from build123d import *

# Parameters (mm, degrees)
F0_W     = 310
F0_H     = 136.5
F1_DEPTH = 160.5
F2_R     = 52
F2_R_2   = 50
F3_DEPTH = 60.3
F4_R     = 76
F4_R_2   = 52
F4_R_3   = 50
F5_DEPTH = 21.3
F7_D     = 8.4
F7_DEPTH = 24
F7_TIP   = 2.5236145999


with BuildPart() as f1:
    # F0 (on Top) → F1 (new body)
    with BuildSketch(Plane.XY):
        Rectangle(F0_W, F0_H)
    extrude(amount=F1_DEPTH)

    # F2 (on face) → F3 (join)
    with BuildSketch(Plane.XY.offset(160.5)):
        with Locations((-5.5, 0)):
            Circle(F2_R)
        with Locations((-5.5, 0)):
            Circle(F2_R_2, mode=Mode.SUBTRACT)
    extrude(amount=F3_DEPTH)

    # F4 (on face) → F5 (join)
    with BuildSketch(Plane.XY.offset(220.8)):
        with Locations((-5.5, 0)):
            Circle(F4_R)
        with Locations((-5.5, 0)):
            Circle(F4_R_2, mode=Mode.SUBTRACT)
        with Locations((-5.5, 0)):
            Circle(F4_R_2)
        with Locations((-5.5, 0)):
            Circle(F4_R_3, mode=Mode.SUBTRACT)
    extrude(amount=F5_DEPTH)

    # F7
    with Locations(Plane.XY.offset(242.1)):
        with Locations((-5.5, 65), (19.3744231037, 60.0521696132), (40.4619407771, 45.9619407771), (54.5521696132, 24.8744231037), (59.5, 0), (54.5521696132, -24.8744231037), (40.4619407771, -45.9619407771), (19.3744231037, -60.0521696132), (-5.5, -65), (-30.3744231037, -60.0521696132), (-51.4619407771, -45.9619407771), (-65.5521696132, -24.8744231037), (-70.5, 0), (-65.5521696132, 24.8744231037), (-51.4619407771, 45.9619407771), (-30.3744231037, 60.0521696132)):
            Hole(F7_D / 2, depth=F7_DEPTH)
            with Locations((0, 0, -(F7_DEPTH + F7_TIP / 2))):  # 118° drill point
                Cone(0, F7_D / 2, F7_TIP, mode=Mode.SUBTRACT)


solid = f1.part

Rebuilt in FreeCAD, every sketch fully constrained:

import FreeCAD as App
import Part
import Sketcher

V = App.Vector
Q = App.Units.Quantity

doc = App.newDocument("Part")
body = doc.addObject("PartDesign::Body", "Body")

# Sketch on XY plane
sketch1 = body.newObject("Sketcher::SketchObject", "Sketch")
sketch1.AttachmentSupport = (doc.getObject("XY_Plane"), [""])
sketch1.MapMode = "FlatFace"
sketch1.addGeometry([
    Part.LineSegment(V(-155, 68, 0), V(-155, -68, 0)),
    Part.LineSegment(V(-155, -68, 0), V(155, -68, 0)),
    Part.LineSegment(V(155, -68, 0), V(155, 68, 0)),
    Part.LineSegment(V(155, 68, 0), V(-155, 68, 0)),
], False)
sketch1.addConstraint([
    Sketcher.Constraint("Coincident", 0, 2, 1, 1),
    Sketcher.Constraint("Coincident", 1, 2, 2, 1),
    Sketcher.Constraint("Coincident", 2, 2, 3, 1),
    Sketcher.Constraint("Coincident", 3, 2, 0, 1),
    Sketcher.Constraint("Vertical", 0),
    Sketcher.Constraint("Horizontal", 1),
    Sketcher.Constraint("Vertical", 2),
    Sketcher.Constraint("Horizontal", 3),
    Sketcher.Constraint("Symmetric", 0, 2, 2, 2, -1, 1),
    Sketcher.Constraint("DistanceX", 1, 1, 1, 2, Q("310 mm")),
    Sketcher.Constraint("DistanceY", 0, 2, 0, 1, Q("136.5 mm")),
])
pad1 = body.newObject("PartDesign::Pad", "Pad")
pad1.Profile = sketch1
pad1.Length = 160.5

# Sketch on XY plane
sketch2 = body.newObject("Sketcher::SketchObject", "Sketch001")
sketch2.AttachmentSupport = (doc.getObject("XY_Plane"), [""])
sketch2.MapMode = "FlatFace"
sketch2.AttachmentOffset = App.Placement(V(0, 0, 160.5), App.Rotation())
sketch2.addGeometry([
    Part.Circle(V(-6, 0, 0), V(0, 0, 1), 52),
    Part.Circle(V(-6, 0, 0), V(0, 0, 1), 50),
], False)
sketch2.addConstraint([
    Sketcher.Constraint("Coincident", 1, 3, 0, 3),
    Sketcher.Constraint("PointOnObject", 0, 3, -1),
    Sketcher.Constraint("Diameter", 0, Q("104 mm")),
    Sketcher.Constraint("Diameter", 1, Q("100 mm")),
    Sketcher.Constraint("DistanceX", 0, 3, -1, 1, Q("5.5 mm")),
])
pad2 = body.newObject("PartDesign::Pad", "Pad001")
pad2.Profile = sketch2
pad2.Length = 60.3

# Sketch on XY plane
sketch3 = body.newObject("Sketcher::SketchObject", "Sketch002")
sketch3.AttachmentSupport = (doc.getObject("XY_Plane"), [""])
sketch3.MapMode = "FlatFace"
sketch3.AttachmentOffset = App.Placement(V(0, 0, 220.8), App.Rotation())
sketch3.addGeometry([
    Part.Circle(V(-6, 0, 0), V(0, 0, 1), 76),
    Part.Circle(V(-6, 0, 0), V(0, 0, 1), 50),
], False)
sketch3.addConstraint([
    Sketcher.Constraint("Coincident", 1, 3, 0, 3),
    Sketcher.Constraint("PointOnObject", 0, 3, -1),
    Sketcher.Constraint("Diameter", 0, Q("152 mm")),
    Sketcher.Constraint("Diameter", 1, Q("100 mm")),
    Sketcher.Constraint("DistanceX", 0, 3, -1, 1, Q("5.5 mm")),
])
pad3 = body.newObject("PartDesign::Pad", "Pad002")
pad3.Profile = sketch3
pad3.Length = 21.3

# Sketch on XY plane
sketch4 = body.newObject("Sketcher::SketchObject", "Sketch003")
sketch4.AttachmentSupport = (doc.getObject("XY_Plane"), [""])
sketch4.MapMode = "FlatFace"
sketch4.AttachmentOffset = App.Placement(V(0, 0, 242.1), App.Rotation())
sketch4.addGeometry([
    Part.Circle(V(-5.5, 65, 0), V(0, 0, 1), 4.2),  # 0
    Part.Circle(V(19.4, 60.1, 0), V(0, 0, 1), 4.2),  # 1
    Part.Circle(V(40.5, 46, 0), V(0, 0, 1), 4.2),  # 2
    Part.Circle(V(54.6, 24.9, 0), V(0, 0, 1), 4.2),  # 3
    Part.Circle(V(59.5, 0, 0), V(0, 0, 1), 4.2),  # 4
    Part.Circle(V(54.6, -24.9, 0), V(0, 0, 1), 4.2),  # 5
    Part.Circle(V(40.5, -46, 0), V(0, 0, 1), 4.2),  # 6
    Part.Circle(V(19.4, -60.1, 0), V(0, 0, 1), 4.2),  # 7
    Part.Circle(V(-5.5, -65, 0), V(0, 0, 1), 4.2),  # 8
    Part.Circle(V(-30.4, -60.1, 0), V(0, 0, 1), 4.2),  # 9
    Part.Circle(V(-51.5, -46, 0), V(0, 0, 1), 4.2),  # 10
    Part.Circle(V(-65.6, -24.9, 0), V(0, 0, 1), 4.2),  # 11
    Part.Circle(V(-70.5, 0, 0), V(0, 0, 1), 4.2),  # 12
    Part.Circle(V(-65.6, 24.9, 0), V(0, 0, 1), 4.2),  # 13
    Part.Circle(V(-51.5, 46, 0), V(0, 0, 1), 4.2),  # 14
    Part.Circle(V(-30.4, 60.1, 0), V(0, 0, 1), 4.2),  # 15
], False)
sketch4.addConstraint([
    Sketcher.Constraint("Equal", 0, 1),
    Sketcher.Constraint("Equal", 1, 2),
    Sketcher.Constraint("Equal", 2, 3),
    Sketcher.Constraint("Equal", 3, 4),
    Sketcher.Constraint("Equal", 4, 5),
    Sketcher.Constraint("Equal", 5, 6),
    Sketcher.Constraint("Equal", 6, 7),
    Sketcher.Constraint("Equal", 7, 8),
    Sketcher.Constraint("Equal", 8, 9),
    Sketcher.Constraint("Equal", 9, 10),
    Sketcher.Constraint("Equal", 10, 11),
    Sketcher.Constraint("Equal", 11, 12),
    Sketcher.Constraint("Equal", 12, 13),
    Sketcher.Constraint("Equal", 13, 14),
    Sketcher.Constraint("Equal", 14, 15),
    Sketcher.Constraint("Symmetric", 3, 3, 5, 3, -1),
    Sketcher.Constraint("Symmetric", 2, 3, 6, 3, -1),
    Sketcher.Constraint("Symmetric", 1, 3, 7, 3, -1),
    Sketcher.Constraint("Symmetric", 0, 3, 8, 3, -1),
    Sketcher.Constraint("Symmetric", 11, 3, 13, 3, -1),
    Sketcher.Constraint("Symmetric", 10, 3, 14, 3, -1),
    Sketcher.Constraint("Symmetric", 9, 3, 15, 3, -1),
    Sketcher.Constraint("PointOnObject", 4, 3, -1),
    Sketcher.Constraint("PointOnObject", 12, 3, -1),
    Sketcher.Constraint("Horizontal", 7, 3, 9, 3),
    Sketcher.Constraint("Horizontal", 6, 3, 10, 3),
    Sketcher.Constraint("Horizontal", 5, 3, 11, 3),
    Sketcher.Constraint("Diameter", 0, Q("8.4 mm")),
    Sketcher.Constraint("DistanceY", -1, 1, 0, 3, Q("65 mm")),
    Sketcher.Constraint("DistanceX", 0, 3, 4, 3, Q("65 mm")),
    Sketcher.Constraint("DistanceX", 12, 3, 0, 3, Q("65 mm")),
    Sketcher.Constraint("DistanceX", 0, 3, -1, 1, Q("5.5 mm")),
    Sketcher.Constraint("DistanceY", -1, 1, 1, 3, Q("60.05217 mm")),
    Sketcher.Constraint("DistanceX", -1, 1, 2, 3, Q("40.461941 mm")),
    Sketcher.Constraint("DistanceY", -1, 1, 2, 3, Q("45.961941 mm")),
    Sketcher.Constraint("DistanceX", -1, 1, 3, 3, Q("54.55217 mm")),
    Sketcher.Constraint("DistanceX", 10, 3, -1, 1, Q("51.461941 mm")),
    Sketcher.Constraint("DistanceX", 11, 3, -1, 1, Q("65.55217 mm")),
    Sketcher.Constraint("DistanceX", -1, 1, 1, 3, Q("19.374423 mm")),
    Sketcher.Constraint("DistanceY", -1, 1, 3, 3, Q("24.874423 mm")),
    Sketcher.Constraint("DistanceX", 9, 3, -1, 1, Q("30.374423 mm")),
])
doc.recompute()
hole = body.newObject("PartDesign::Hole", "Hole")
hole.Profile = sketch4
hole.ThreadType = "None"
hole.Diameter = 8.4
hole.DepthType = "Dimension"
hole.Depth = 24
hole.DrillPoint = "Angled"
hole.DrillPointAngle = 118

doc.recompute()
